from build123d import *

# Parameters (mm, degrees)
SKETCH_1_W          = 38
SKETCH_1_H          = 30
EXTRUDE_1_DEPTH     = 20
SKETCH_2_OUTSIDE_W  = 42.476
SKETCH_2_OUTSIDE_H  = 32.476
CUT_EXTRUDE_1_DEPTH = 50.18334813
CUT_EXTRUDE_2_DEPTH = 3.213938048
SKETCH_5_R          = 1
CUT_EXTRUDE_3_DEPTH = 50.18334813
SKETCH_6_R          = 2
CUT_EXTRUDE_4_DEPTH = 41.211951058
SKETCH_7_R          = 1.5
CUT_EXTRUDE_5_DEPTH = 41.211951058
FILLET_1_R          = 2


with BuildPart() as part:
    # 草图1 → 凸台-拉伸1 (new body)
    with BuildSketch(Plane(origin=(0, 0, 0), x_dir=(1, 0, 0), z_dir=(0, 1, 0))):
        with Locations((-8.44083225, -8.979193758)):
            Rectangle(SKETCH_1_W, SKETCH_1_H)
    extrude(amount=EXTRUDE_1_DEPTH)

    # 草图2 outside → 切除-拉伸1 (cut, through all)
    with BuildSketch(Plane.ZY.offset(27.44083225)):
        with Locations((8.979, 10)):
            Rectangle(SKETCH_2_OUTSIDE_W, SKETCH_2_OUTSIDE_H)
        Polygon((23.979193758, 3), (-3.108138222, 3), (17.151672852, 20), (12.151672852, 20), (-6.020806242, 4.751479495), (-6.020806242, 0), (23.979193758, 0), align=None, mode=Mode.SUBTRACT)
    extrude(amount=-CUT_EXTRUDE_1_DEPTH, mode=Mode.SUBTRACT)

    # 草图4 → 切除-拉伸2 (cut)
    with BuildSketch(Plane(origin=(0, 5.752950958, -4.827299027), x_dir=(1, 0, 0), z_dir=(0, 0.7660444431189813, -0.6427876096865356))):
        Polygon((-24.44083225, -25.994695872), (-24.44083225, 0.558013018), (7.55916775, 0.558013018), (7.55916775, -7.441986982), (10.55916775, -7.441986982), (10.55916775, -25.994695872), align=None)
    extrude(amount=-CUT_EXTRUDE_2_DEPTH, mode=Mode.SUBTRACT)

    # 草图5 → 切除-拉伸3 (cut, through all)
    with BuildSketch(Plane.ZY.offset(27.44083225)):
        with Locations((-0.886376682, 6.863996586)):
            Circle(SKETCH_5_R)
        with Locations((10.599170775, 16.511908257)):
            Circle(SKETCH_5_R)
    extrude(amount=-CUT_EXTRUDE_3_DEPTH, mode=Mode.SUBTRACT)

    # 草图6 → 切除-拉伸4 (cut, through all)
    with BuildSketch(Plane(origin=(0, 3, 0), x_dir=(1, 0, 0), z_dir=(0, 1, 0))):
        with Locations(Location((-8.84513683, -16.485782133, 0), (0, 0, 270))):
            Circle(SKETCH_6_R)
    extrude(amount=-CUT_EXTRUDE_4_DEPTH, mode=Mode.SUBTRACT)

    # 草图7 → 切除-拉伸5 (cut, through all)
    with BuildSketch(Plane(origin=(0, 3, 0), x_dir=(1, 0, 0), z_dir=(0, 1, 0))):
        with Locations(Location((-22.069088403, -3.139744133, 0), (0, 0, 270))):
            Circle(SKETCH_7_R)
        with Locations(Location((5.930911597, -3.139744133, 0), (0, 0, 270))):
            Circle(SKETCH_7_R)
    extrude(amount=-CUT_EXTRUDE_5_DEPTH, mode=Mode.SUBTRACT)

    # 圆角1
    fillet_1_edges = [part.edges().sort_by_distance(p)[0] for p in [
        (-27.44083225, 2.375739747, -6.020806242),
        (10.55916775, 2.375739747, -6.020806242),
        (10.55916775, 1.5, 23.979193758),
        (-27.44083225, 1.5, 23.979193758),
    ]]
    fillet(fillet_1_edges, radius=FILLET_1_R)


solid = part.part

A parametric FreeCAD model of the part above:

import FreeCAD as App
import Part
import Sketcher
from FreeCAD import Vector
Q = App.Units.Quantity


def edges_at(feature, points):
    """Names of the edges that pass closest to the given points."""
    edges = feature.Shape.Edges
    near = lambda p: min(range(len(edges)), key=lambda i: edges[i].distToShape(Part.Vertex(*p))[0])
    return sorted({f"Edge{near(p) + 1}" for p in points})

doc = App.newDocument("Part")
body = doc.addObject("PartDesign::Body", "Body")

# Sketch on XZ plane
sketch1 = doc.addObject("Sketcher::SketchObject", "Sketch")
body.addObject(sketch1)
sketch1.AttachmentSupport = (doc.XZ_Plane, [""])
sketch1.MapMode = "FlatFace"
sketch1.addGeometry(Part.LineSegment(Vector(-27, -6, 0), Vector(-27, 24, 0)), False)
sketch1.addGeometry(Part.LineSegment(Vector(-27, 24, 0), Vector(11, 24, 0)), False)
sketch1.addGeometry(Part.LineSegment(Vector(11, 24, 0), Vector(11, -6, 0)), False)
sketch1.addGeometry(Part.LineSegment(Vector(11, -6, 0), Vector(-27, -6, 0)), False)
sketch1.addConstraint(Sketcher.Constraint("Coincident", 0, 2, 1, 1))
sketch1.addConstraint(Sketcher.Constraint("Coincident", 1, 2, 2, 1))
sketch1.addConstraint(Sketcher.Constraint("Coincident", 2, 2, 3, 1))
sketch1.addConstraint(Sketcher.Constraint("Coincident", 3, 2, 0, 1))
sketch1.addConstraint(Sketcher.Constraint("Vertical", 0))
sketch1.addConstraint(Sketcher.Constraint("Horizontal", 1))
sketch1.addConstraint(Sketcher.Constraint("Vertical", 2))
sketch1.addConstraint(Sketcher.Constraint("Horizontal", 3))
sketch1.addConstraint(Sketcher.Constraint("DistanceX", 1, 1, 1, 2, 38.0))
sketch1.addConstraint(Sketcher.Constraint("DistanceY", 0, 1, 0, 2, 30.0))
sketch1.addConstraint(Sketcher.Constraint("DistanceX", 0, 2, -1, 1, 27.440832))
sketch1.addConstraint(Sketcher.Constraint("DistanceY", -1, 1, 0, 2, 23.979194))
pad1 = doc.addObject("PartDesign::Pad", "Pad")
body.addObject(pad1)
pad1.Profile = sketch1
pad1.Length = 20
pad1.Reversed = True

# Sketch on YZ plane
sketch2 = doc.addObject("Sketcher::SketchObject", "Sketch001")
body.addObject(sketch2)
sketch2.AttachmentSupport = (doc.YZ_Plane, [""])
sketch2.MapMode = "FlatFace"
sketch2.AttachmentOffset = App.Placement(Vector(0, 0, -27.440832), App.Rotation())
sketch2.addGeometry(Part.LineSegment(Vector(26.2, -12.3, 0), Vector(-6.2, -12.3, 0)), False)
sketch2.addGeometry(Part.LineSegment(Vector(-6.2, -12.3, 0), Vector(-6.2, 30.2, 0)), False)
sketch2.addGeometry(Part.LineSegment(Vector(-6.2, 30.2, 0), Vector(26.2, 30.2, 0)), False)
sketch2.addGeometry(Part.LineSegment(Vector(26.2, 30.2, 0), Vector(26.2, -12.3, 0)), False)
sketch2.addGeometry(Part.LineSegment(Vector(3, -3.1, 0), Vector(3, 24, 0)), False)
sketch2.addGeometry(Part.LineSegment(Vector(3, 24, 0), Vector(0, 24, 0)), False)
sketch2.addGeometry(Part.LineSegment(Vector(0, 24, 0), Vector(0, -6, 0)), False)
sketch2.addGeometry(Part.LineSegment(Vector(0, -6, 0), Vector(4.8, -6, 0)), False)
sketch2.addGeometry(Part.LineSegment(Vector(4.8, -6, 0), Vector(20, 12.2, 0)), False)
sketch2.addGeometry(Part.LineSegment(Vector(20, 12.2, 0), Vector(20, 17.2, 0)), False)
sketch2.addGeometry(Part.LineSegment(Vector(20, 17.2, 0), Vector(3, -3.1, 0)), False)
sketch2.addConstraint(Sketcher.Constraint("Coincident", 0, 2, 1, 1))
sketch2.addConstraint(Sketcher.Constraint("Coincident", 1, 2, 2, 1))
sketch2.addConstraint(Sketcher.Constraint("Coincident", 2, 2, 3, 1))
sketch2.addConstraint(Sketcher.Constraint("Coincident", 3, 2, 0, 1))
sketch2.addConstraint(Sketcher.Constraint("Coincident", 4, 2, 5, 1))
sketch2.addConstraint(Sketcher.Constraint("Coincident", 5, 2, 6, 1))
sketch2.addConstraint(Sketcher.Constraint("Coincident", 6, 2, 7, 1))
sketch2.addConstraint(Sketcher.Constraint("Coincident", 7, 2, 8, 1))
sketch2.addConstraint(Sketcher.Constraint("Coincident", 8, 2, 9, 1))
sketch2.addConstraint(Sketcher.Constraint("Coincident", 9, 2, 10, 1))
sketch2.addConstraint(Sketcher.Constraint("Coincident", 10, 2, 4, 1))
sketch2.addConstraint(Sketcher.Constraint("Horizontal", 0))
sketch2.addConstraint(Sketcher.Constraint("Vertical", 1))
sketch2.addConstraint(Sketcher.Constraint("Horizontal", 2))
sketch2.addConstraint(Sketcher.Constraint("Vertical", 3))
sketch2.addConstraint(Sketcher.Constraint("Vertical", 4))
sketch2.addConstraint(Sketcher.Constraint("Horizontal", 5))
sketch2.addConstraint(Sketcher.Constraint("Vertical", 6))
sketch2.addConstraint(Sketcher.Constraint("Horizontal", 7))
sketch2.addConstraint(Sketcher.Constraint("Vertical", 9))
sketch2.addConstraint(Sketcher.Constraint("PointOnObject", 5, 2, -2))
sketch2.addConstraint(Sketcher.Constraint("Parallel", 8, 10))
sketch2.addConstraint(Sketcher.Constraint("DistanceX", 5, 2, 5, 1, 3.0))
sketch2.addConstraint(Sketcher.Constraint("DistanceY", 6, 2, 6, 1, 30.0))
sketch2.addConstraint(Sketcher.Constraint("DistanceY", 9, 1, 9, 2, 5.0))
sketch2.addConstraint(Sketcher.Constraint("Angle", 8, Q("50 deg")))
sketch2.addConstraint(Sketcher.Constraint("DistanceX", -1, 1, 8, 2, 20.0))
sketch2.addConstraint(Sketcher.Constraint("DistanceX", 0, 2, 0, 1, 32.476))
sketch2.addConstraint(Sketcher.Constraint("DistanceY", 1, 1, 1, 2, 42.476))
sketch2.addConstraint(Sketcher.Constraint("DistanceX", 0, 2, -1, 1, 6.238))
sketch2.addConstraint(Sketcher.Constraint("DistanceY", 0, 2, -1, 1, 12.259))
sketch2.addConstraint(Sketcher.Constraint("DistanceX", 7, 1, 7, 2, 4.751479))
sketch2.addConstraint(Sketcher.Constraint("DistanceY", 10, 2, -1, 1, 3.108138))
pocket1 = doc.addObject("PartDesign::Pocket", "Pocket")
body.addObject(pocket1)
pocket1.Profile = sketch2
pocket1.Type = "ThroughAll"
pocket1.Reversed = True

# Sketch on an angled plane
sketch3 = doc.addObject("Sketcher::SketchObject", "Sketch002")
body.addObject(sketch3)
sketch3.Placement = App.Placement(Vector(0, 5.752951, -4.827299), App.Rotation(Vector(1, 0, 0), Vector(0, -0.64278761, -0.766044443), Vector(0, 0.766044443, -0.64278761), "ZXY"))
sketch3.addGeometry(Part.LineSegment(Vector(-24.4, 0.6, 0), Vector(-24.4, -26, 0)), False)
sketch3.addGeometry(Part.LineSegment(Vector(-24.4, -26, 0), Vector(10.6, -26, 0)), False)
sketch3.addGeometry(Part.LineSegment(Vector(10.6, -26, 0), Vector(10.6, -7.4, 0)), False)
sketch3.addGeometry(Part.LineSegment(Vector(10.6, -7.4, 0), Vector(7.6, -7.4, 0)), False)
sketch3.addGeometry(Part.LineSegment(Vector(7.6, -7.4, 0), Vector(7.6, 0.6, 0)), False)
sketch3.addGeometry(Part.LineSegment(Vector(7.6, 0.6, 0), Vector(-24.4, 0.6, 0)), False)
sketch3.addConstraint(Sketcher.Constraint("Coincident", 0, 2, 1, 1))
sketch3.addConstraint(Sketcher.Constraint("Coincident", 1, 2, 2, 1))
sketch3.addConstraint(Sketcher.Constraint("Coincident", 2, 2, 3, 1))
sketch3.addConstraint(Sketcher.Constraint("Coincident", 3, 2, 4, 1))
sketch3.addConstraint(Sketcher.Constraint("Coincident", 4, 2, 5, 1))
sketch3.addConstraint(Sketcher.Constraint("Coincident", 5, 2, 0, 1))
sketch3.addConstraint(Sketcher.Constraint("Vertical", 0))
sketch3.addConstraint(Sketcher.Constraint("Horizontal", 1))
sketch3.addConstraint(Sketcher.Constraint("Vertical", 2))
sketch3.addConstraint(Sketcher.Constraint("Horizontal", 3))
sketch3.addConstraint(Sketcher.Constraint("Vertical", 4))
sketch3.addConstraint(Sketcher.Constraint("Horizontal", 5))
sketch3.addConstraint(Sketcher.Constraint("DistanceX", 1, 1, 1, 2, 35.0))
sketch3.addConstraint(Sketcher.Constraint("DistanceX", 3, 2, 3, 1, 3.0))
sketch3.addConstraint(Sketcher.Constraint("DistanceY", 4, 1, 4, 2, 8.0))
sketch3.addConstraint(Sketcher.Constraint("DistanceY", 0, 2, 0, 1, 26.552709))
sketch3.addConstraint(Sketcher.Constraint("DistanceX", 0, 2, -1, 1, 24.440832))
sketch3.addConstraint(Sketcher.Constraint("DistanceY", 0, 2, -1, 1, 25.994696))
pocket2 = doc.addObject("PartDesign::Pocket", "Pocket001")
body.addObject(pocket2)
pocket2.Profile = sketch3
pocket2.Length = 3.213938

# Sketch on YZ plane
sketch4 = doc.addObject("Sketcher::SketchObject", "Sketch003")
body.addObject(sketch4)
sketch4.AttachmentSupport = (doc.YZ_Plane, [""])
sketch4.MapMode = "FlatFace"
sketch4.AttachmentOffset = App.Placement(Vector(0, 0, -27.440832), App.Rotation())
sketch4.addGeometry(Part.Circle(Vector(6.9, -0.9, 0), Vector(0, 0, 1), 1), False)
sketch4.addGeometry(Part.Circle(Vector(16.5, 10.6, 0), Vector(0, 0, 1), 1), False)
sketch4.addConstraint(Sketcher.Constraint("Equal", 0, 1))
sketch4.addConstraint(Sketcher.Constraint("Diameter", 0, 2.0))
sketch4.addConstraint(Sketcher.Constraint("DistanceX", -1, 1, 1, 3, 16.511908))
sketch4.addConstraint(Sketcher.Constraint("DistanceY", -1, 1, 1, 3, 10.599171))
sketch4.addConstraint(Sketcher.Constraint("DistanceX", 0, 3, 1, 3, 9.647912))
sketch4.addConstraint(Sketcher.Constraint("DistanceY", 0, 3, -1, 1, 0.886377))
pocket3 = doc.addObject("PartDesign::Pocket", "Pocket002")
body.addObject(pocket3)
pocket3.Profile = sketch4
pocket3.Type = "ThroughAll"
pocket3.Reversed = True

# Sketch on XZ plane
sketch5 = doc.addObject("Sketcher::SketchObject", "Sketch004")
body.addObject(sketch5)
sketch5.AttachmentSupport = (doc.XZ_Plane, [""])
sketch5.MapMode = "FlatFace"
sketch5.AttachmentOffset = App.Placement(Vector(0, 0, -3), App.Rotation())
sketch5.addGeometry(Part.Circle(Vector(-8.8, 16.5, 0), Vector(0, 0, 1), 2), False)
sketch5.addConstraint(Sketcher.Constraint("Diameter", 0, 4.0))
sketch5.addConstraint(Sketcher.Constraint("DistanceX", 0, 3, -1, 1, 8.845137))
sketch5.addConstraint(Sketcher.Constraint("DistanceY", -1, 1, 0, 3, 16.485782))
pocket4 = doc.addObject("PartDesign::Pocket", "Pocket003")
body.addObject(pocket4)
pocket4.Profile = sketch5
pocket4.Type = "ThroughAll"
pocket4.Reversed = True

# Sketch on XZ plane
sketch6 = doc.addObject("Sketcher::SketchObject", "Sketch005")
body.addObject(sketch6)
sketch6.AttachmentSupport = (doc.XZ_Plane, [""])
sketch6.MapMode = "FlatFace"
sketch6.AttachmentOffset = App.Placement(Vector(0, 0, -3), App.Rotation())
sketch6.addGeometry(Part.Circle(Vector(-22.1, 3.1, 0), Vector(0, 0, 1), 1.5), False)
sketch6.addGeometry(Part.Circle(Vector(5.9, 3.1, 0), Vector(0, 0, 1), 1.5), False)
sketch6.addConstraint(Sketcher.Constraint("Equal", 0, 1))
sketch6.addConstraint(Sketcher.Constraint("Horizontal", 0, 3, 1, 3))
sketch6.addConstraint(Sketcher.Constraint("Diameter", 0, 3.0))
sketch6.addConstraint(Sketcher.Constraint("DistanceX", 0, 3, 1, 3, 28.0))
sketch6.addConstraint(Sketcher.Constraint("DistanceX", 0, 3, -1, 1, 22.069088))
sketch6.addConstraint(Sketcher.Constraint("DistanceY", -1, 1, 0, 3, 3.139744))
pocket5 = doc.addObject("PartDesign::Pocket", "Pocket004")
body.addObject(pocket5)
pocket5.Profile = sketch6
pocket5.Type = "ThroughAll"
pocket5.Reversed = True
doc.recompute()

fillet = doc.addObject("PartDesign::Fillet", "Fillet")
body.addObject(fillet)
fillet.Base = (pocket5, edges_at(pocket5, [
    (-27.441, 2.376, -6.021),
    (10.559, 2.376, -6.021),
    (10.559, 1.5, 23.979),
    (-27.441, 1.5, 23.979),
]))
fillet.Radius = 2

doc.recompute()
